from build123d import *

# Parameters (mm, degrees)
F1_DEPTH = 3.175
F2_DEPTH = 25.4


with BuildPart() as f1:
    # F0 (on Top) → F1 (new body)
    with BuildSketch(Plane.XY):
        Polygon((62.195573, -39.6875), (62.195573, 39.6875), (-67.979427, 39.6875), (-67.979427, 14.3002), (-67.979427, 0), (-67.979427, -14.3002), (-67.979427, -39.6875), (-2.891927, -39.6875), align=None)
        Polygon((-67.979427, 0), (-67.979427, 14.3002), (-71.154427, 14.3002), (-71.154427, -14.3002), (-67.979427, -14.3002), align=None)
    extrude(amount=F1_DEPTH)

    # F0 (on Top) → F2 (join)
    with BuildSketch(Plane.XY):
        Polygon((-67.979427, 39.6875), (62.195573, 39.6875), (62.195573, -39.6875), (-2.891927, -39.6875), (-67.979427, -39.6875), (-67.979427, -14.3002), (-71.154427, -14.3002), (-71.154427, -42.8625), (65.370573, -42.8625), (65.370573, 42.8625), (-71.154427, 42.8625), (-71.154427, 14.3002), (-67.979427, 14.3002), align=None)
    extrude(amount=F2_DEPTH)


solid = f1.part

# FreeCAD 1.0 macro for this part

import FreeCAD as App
import Part
import Sketcher
Q = App.Units.Quantity


def add_polygon(sketch, points):
    """Adds a closed chain of lines whose ends are joined by coincident constraints."""
    first, n = sketch.GeometryCount, len(points)
    for a, b in zip(points, points[1:] + points[:1]):
        sketch.addGeometry(Part.LineSegment(App.Vector(*a, 0), App.Vector(*b, 0)), False)
    for i in range(n):
        sketch.addConstraint(Sketcher.Constraint("Coincident", first + i, 2, first + (i + 1) % n, 1))

doc = App.newDocument("Part")
body = doc.addObject("PartDesign::Body", "Body")

# Sketch on XY plane
sketch1 = body.newObject("Sketcher::SketchObject", "Sketch")
sketch1.AttachmentSupport = (doc.getObject("XY_Plane"), [""])
sketch1.MapMode = "FlatFace"
add_polygon(sketch1, [(62.2, -39.7), (62.2, 39.7), (-68, 39.7), (-68, 14.3), (-71.2, 14.3), (-71.2, -14.3), (-68, -14.3), (-68, -39.7)])  # lines 0-7
sketch1.addConstraint([
    Sketcher.Constraint("Vertical", 0),
    Sketcher.Constraint("Horizontal", 1),
    Sketcher.Constraint("Vertical", 2),
    Sketcher.Constraint("Horizontal", 3),
    Sketcher.Constraint("Vertical", 4),
    Sketcher.Constraint("Horizontal", 5),
    Sketcher.Constraint("Vertical", 6),
    Sketcher.Constraint("Horizontal", 7),
    Sketcher.Constraint("Symmetric", 2, 2, 5, 2, -1),
    Sketcher.Constraint("Equal", 2, 6),
    Sketcher.Constraint("DistanceX", 1, 2, 1, 1, Q("5.125 in")),
    Sketcher.Constraint("DistanceX", 3, 2, 3, 1, Q("0.125 in")),
    Sketcher.Constraint("DistanceY", 0, 1, 0, 2, Q("3.125 in")),
    Sketcher.Constraint("DistanceY", 4, 2, 4, 1, Q("1.126 in")),
    Sketcher.Constraint("DistanceX", -1, 1, 0, 2, Q("62.195573 mm")),
])
pad1 = body.newObject("PartDesign::Pad", "Pad")
pad1.Profile = sketch1
pad1.Length = Q("0.125 in")

# Sketch on XY plane
sketch2 = body.newObject("Sketcher::SketchObject", "Sketch001")
sketch2.AttachmentSupport = (doc.getObject("XY_Plane"), [""])
sketch2.MapMode = "FlatFace"
add_polygon(sketch2, [(-68, 39.7), (62.2, 39.7), (62.2, -39.7), (-68, -39.7), (-68, -14.3), (-71.2, -14.3), (-71.2, -42.9), (65.4, -42.9), (65.4, 42.9), (-71.2, 42.9), (-71.2, 14.3), (-68, 14.3)])  # lines 0-11
sketch2.addConstraint([
    Sketcher.Constraint("Horizontal", 0),
    Sketcher.Constraint("Vertical", 1),
    Sketcher.Constraint("Horizontal", 2),
    Sketcher.Constraint("Vertical", 3),
    Sketcher.Constraint("Horizontal", 4),
    Sketcher.Constraint("Vertical", 5),
    Sketcher.Constraint("Horizontal", 6),
    Sketcher.Constraint("Vertical", 7),
    Sketcher.Constraint("Horizontal", 8),
    Sketcher.Constraint("Vertical", 9),
    Sketcher.Constraint("Horizontal", 10),
    Sketcher.Constraint("Vertical", 11),
    Sketcher.Constraint("Symmetric", 5, 2, 8, 2, -1),
    Sketcher.Constraint("Symmetric", 3, 2, 10, 2, -1),
    Sketcher.Constraint("Equal", 3, 11),
    Sketcher.Constraint("DistanceX", 0, 1, 0, 2, Q("5.125 in")),
    Sketcher.Constraint("DistanceX", 4, 2, 4, 1, Q("0.125 in")),
    Sketcher.Constraint("DistanceX", 6, 1, 6, 2, Q("5.375 in")),
    Sketcher.Constraint("DistanceY", 1, 2, 1, 1, Q("3.125 in")),
    Sketcher.Constraint("DistanceY", 7, 1, 7, 2, Q("3.375 in")),
    Sketcher.Constraint("DistanceY", 3, 1, 3, 2, Q("0.9995 in")),
    Sketcher.Constraint("DistanceX", -1, 1, 0, 2, Q("62.195573 mm")),
])
pad2 = body.newObject("PartDesign::Pad", "Pad001")
pad2.Profile = sketch2
pad2.Length = Q("1 in")

doc.recompute()
